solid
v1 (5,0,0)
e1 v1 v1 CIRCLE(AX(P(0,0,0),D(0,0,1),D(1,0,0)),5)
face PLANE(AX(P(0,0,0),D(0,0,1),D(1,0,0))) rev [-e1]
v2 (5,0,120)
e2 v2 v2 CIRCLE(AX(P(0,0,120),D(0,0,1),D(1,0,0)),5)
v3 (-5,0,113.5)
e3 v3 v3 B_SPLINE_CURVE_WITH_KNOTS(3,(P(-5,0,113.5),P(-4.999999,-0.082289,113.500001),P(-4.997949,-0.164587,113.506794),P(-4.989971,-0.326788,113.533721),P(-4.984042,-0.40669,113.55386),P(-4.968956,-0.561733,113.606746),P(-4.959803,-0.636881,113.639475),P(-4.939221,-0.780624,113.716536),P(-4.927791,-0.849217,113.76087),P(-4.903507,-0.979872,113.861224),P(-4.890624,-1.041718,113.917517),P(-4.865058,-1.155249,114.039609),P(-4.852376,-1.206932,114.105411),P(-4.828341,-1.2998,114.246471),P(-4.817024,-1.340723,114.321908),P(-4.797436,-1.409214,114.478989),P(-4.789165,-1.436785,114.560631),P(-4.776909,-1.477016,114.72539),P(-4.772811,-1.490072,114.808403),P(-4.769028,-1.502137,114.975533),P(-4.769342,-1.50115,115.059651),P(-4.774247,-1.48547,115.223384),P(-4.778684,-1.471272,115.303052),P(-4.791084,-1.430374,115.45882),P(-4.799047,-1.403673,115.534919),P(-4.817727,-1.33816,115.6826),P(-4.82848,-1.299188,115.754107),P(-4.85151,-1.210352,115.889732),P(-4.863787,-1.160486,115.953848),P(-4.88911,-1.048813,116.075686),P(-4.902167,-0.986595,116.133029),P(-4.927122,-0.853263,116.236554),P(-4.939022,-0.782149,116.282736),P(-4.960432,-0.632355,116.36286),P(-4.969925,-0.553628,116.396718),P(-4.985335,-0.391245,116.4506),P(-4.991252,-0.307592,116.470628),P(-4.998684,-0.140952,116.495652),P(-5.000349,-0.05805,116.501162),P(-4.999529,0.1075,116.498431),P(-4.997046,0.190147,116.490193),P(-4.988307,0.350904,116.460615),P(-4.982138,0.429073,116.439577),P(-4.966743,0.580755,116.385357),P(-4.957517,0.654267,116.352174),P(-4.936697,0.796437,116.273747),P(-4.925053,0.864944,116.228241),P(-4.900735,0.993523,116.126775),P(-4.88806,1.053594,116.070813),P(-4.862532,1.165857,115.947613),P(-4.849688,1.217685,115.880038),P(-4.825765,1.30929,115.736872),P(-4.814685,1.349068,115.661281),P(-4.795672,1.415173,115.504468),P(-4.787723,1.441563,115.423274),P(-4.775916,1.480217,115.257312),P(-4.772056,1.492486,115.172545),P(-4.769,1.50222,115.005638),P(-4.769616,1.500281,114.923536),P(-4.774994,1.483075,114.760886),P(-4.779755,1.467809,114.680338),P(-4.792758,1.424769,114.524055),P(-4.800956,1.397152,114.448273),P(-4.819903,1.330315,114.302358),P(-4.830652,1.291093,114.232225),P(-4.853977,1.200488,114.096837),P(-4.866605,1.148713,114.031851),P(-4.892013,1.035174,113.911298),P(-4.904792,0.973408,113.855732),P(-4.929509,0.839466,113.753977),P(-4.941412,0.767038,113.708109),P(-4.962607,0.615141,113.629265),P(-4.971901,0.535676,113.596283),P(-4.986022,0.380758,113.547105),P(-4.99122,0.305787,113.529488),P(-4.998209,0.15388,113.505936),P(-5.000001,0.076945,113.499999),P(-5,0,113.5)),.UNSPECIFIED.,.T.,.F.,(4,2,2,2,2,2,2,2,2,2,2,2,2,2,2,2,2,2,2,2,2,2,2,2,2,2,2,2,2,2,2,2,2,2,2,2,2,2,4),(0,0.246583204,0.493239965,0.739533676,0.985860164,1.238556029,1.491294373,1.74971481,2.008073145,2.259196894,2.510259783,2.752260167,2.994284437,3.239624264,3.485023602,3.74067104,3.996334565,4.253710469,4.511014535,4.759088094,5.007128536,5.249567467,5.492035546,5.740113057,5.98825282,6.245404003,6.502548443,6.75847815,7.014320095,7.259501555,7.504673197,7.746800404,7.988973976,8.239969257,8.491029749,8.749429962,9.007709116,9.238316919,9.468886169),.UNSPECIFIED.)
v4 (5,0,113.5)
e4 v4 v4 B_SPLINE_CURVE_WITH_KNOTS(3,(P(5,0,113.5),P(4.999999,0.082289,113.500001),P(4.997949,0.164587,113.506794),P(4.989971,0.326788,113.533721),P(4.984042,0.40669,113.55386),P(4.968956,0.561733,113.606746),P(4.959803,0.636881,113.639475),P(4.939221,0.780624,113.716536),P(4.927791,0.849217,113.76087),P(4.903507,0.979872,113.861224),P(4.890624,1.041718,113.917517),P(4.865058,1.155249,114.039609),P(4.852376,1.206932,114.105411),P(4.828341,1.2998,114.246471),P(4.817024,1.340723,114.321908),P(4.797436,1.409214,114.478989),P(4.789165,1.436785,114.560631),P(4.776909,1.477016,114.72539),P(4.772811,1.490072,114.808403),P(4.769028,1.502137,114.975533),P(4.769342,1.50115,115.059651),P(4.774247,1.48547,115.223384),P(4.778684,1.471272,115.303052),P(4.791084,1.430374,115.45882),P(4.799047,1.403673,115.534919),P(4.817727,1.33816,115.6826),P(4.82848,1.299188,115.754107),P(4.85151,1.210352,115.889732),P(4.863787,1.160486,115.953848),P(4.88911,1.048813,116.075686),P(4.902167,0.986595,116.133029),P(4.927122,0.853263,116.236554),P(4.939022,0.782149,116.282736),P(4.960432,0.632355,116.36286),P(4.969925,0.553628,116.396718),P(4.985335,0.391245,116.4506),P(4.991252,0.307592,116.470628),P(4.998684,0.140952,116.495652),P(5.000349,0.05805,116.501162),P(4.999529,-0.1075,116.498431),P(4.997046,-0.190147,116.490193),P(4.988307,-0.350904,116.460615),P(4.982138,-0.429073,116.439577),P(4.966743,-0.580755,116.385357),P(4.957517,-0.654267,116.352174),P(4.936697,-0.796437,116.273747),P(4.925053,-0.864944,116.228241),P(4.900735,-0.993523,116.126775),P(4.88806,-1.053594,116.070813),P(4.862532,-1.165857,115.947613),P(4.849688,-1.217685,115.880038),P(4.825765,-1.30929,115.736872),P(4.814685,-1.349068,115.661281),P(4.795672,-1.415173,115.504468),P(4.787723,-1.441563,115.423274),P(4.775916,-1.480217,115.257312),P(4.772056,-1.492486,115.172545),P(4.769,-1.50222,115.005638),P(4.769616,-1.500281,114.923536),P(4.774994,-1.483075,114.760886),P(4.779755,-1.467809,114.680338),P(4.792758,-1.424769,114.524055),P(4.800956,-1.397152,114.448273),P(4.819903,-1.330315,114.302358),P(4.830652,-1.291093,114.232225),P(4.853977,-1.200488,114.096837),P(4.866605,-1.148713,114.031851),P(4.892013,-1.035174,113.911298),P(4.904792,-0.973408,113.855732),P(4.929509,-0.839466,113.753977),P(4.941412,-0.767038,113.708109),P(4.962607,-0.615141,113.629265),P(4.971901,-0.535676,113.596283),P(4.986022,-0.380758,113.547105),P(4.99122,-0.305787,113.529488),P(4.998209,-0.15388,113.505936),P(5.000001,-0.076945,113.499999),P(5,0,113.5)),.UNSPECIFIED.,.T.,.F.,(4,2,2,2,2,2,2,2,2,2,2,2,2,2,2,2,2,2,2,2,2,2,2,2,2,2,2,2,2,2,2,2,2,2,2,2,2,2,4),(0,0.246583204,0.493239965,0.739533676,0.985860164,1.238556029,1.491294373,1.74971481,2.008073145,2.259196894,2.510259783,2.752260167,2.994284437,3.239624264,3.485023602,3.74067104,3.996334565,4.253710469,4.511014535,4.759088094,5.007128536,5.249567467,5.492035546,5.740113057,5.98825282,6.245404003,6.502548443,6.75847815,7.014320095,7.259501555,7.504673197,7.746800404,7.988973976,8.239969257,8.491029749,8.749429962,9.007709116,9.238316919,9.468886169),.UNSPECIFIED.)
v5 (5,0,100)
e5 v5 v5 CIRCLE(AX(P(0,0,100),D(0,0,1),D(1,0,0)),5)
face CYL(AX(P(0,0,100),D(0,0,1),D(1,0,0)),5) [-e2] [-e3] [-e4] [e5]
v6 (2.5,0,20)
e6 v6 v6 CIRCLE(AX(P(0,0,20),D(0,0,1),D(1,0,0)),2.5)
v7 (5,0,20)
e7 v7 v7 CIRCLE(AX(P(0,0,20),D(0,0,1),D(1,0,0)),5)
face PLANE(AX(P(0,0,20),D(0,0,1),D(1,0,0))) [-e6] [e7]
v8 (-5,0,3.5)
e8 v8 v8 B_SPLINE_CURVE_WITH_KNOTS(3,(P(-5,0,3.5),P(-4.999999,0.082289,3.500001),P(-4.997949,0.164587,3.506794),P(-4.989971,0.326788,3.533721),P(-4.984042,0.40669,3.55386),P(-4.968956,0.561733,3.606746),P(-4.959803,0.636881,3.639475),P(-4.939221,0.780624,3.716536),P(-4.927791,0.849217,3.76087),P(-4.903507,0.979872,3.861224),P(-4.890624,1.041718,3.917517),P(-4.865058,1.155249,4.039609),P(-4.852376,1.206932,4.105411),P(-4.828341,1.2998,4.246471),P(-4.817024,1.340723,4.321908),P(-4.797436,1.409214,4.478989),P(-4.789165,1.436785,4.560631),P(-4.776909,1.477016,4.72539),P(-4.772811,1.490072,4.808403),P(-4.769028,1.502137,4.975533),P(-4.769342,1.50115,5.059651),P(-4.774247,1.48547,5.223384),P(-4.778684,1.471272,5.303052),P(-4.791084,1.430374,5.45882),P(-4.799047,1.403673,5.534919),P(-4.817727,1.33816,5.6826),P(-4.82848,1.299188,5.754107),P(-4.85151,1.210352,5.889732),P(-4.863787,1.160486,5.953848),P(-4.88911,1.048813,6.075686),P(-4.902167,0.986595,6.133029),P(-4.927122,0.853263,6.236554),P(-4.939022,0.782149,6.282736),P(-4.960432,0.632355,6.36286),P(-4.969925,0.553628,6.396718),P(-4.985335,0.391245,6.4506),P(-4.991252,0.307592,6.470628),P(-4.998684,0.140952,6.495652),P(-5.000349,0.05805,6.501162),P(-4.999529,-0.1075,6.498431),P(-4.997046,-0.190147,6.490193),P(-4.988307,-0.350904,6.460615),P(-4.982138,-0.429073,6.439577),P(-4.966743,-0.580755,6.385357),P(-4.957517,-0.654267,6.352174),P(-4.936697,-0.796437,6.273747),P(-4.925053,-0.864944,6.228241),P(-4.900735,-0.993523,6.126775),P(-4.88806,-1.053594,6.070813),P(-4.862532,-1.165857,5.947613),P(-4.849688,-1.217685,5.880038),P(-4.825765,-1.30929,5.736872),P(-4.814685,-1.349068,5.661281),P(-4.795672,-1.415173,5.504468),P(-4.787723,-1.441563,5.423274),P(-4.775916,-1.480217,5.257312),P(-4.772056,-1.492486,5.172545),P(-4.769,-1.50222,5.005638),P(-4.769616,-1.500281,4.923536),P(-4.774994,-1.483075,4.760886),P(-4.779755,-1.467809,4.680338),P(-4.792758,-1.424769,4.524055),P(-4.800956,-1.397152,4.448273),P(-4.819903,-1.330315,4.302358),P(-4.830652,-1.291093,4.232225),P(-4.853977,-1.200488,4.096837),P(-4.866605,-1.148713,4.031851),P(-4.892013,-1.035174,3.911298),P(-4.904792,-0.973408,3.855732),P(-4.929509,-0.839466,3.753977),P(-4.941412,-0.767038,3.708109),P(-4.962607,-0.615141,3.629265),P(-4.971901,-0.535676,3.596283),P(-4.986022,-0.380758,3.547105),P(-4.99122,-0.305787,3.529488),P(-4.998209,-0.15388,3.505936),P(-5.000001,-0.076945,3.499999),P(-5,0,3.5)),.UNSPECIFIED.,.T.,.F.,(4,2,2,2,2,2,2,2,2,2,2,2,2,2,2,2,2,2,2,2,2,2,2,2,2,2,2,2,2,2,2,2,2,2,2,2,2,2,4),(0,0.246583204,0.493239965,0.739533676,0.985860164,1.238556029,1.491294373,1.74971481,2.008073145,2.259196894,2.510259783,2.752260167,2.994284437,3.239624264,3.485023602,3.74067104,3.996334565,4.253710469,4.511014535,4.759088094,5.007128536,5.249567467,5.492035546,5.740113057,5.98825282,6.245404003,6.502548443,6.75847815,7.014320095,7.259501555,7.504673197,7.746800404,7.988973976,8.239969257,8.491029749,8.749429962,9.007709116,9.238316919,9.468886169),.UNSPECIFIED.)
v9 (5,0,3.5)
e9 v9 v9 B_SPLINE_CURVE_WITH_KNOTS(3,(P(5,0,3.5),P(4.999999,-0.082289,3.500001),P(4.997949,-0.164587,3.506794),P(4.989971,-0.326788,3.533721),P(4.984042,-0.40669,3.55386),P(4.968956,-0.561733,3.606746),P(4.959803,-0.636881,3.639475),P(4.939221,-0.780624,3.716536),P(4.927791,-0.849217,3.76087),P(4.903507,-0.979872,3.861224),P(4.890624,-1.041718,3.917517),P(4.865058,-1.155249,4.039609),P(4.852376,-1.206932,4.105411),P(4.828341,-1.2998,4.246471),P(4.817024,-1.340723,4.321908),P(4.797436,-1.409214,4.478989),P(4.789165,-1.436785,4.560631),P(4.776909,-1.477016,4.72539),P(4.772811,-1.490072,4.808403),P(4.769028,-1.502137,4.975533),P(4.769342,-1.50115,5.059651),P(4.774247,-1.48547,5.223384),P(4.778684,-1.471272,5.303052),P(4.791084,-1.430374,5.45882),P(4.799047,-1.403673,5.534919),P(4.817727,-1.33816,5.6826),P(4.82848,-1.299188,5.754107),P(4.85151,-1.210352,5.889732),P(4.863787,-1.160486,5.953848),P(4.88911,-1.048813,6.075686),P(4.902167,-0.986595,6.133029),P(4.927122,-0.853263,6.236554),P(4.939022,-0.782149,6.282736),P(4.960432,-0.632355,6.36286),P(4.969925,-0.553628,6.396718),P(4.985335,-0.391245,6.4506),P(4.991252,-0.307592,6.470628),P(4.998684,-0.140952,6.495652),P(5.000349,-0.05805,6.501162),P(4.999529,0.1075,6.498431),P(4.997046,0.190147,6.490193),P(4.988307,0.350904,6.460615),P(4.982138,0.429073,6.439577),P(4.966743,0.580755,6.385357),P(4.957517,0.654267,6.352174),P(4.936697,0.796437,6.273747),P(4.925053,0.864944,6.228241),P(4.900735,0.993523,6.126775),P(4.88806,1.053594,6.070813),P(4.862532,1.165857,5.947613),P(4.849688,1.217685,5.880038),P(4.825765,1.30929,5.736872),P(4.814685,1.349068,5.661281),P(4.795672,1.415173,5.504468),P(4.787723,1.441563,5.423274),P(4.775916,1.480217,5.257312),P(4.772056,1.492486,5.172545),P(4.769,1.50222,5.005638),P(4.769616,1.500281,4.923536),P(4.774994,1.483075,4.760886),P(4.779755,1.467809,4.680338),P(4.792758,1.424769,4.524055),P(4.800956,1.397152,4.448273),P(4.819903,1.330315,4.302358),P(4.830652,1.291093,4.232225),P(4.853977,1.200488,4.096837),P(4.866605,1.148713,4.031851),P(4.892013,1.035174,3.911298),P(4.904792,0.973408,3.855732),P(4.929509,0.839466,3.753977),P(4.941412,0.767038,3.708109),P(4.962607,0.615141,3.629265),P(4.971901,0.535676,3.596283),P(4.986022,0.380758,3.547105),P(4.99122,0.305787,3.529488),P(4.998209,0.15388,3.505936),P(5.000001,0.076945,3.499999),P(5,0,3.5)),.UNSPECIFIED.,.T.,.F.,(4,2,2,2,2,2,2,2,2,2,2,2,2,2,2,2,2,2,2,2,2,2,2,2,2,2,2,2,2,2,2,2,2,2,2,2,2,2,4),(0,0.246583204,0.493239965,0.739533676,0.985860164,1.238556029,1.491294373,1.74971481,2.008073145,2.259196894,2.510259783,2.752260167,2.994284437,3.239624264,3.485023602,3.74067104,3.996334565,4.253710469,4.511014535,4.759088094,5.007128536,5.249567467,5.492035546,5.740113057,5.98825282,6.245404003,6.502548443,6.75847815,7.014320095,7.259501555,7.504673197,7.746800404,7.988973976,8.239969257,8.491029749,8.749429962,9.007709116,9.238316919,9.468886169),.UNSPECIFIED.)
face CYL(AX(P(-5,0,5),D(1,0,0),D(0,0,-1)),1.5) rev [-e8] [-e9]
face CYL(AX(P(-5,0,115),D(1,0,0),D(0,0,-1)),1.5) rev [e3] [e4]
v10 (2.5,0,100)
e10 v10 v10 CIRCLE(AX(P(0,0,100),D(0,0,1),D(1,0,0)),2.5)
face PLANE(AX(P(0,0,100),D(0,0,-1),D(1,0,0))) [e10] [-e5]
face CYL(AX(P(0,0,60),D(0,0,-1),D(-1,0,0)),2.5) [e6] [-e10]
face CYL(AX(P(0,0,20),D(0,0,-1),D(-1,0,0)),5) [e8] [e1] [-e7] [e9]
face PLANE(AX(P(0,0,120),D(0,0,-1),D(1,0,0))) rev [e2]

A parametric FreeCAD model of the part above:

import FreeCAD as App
import Part
import Sketcher
Q = App.Units.Quantity

doc = App.newDocument("Part")
params = doc.addObject("Spreadsheet::Sheet", "Params")
for row, (alias, value) in enumerate([
    ("sketch1_diameter", "10 mm"),
    ("pad1_length", "20 mm"),
    ("sketch2_diameter", "5 mm"),
    ("pad2_length", "40 mm"),
    ("sketch3_diameter", "3 mm"),
    ("sketch4_diameter", "3 mm"),
], start=1):
    params.set(f"A{row}", alias)
    params.set(f"B{row}", "=" + value)
    params.setAlias(f"B{row}", alias)

body = doc.addObject("PartDesign::Body", "Body")

sketch1 = doc.addObject("Sketcher::SketchObject", "Sketch")
body.addObject(sketch1)
sketch1.AttachmentSupport = (doc.XY_Plane, [""])
sketch1.MapMode = "FlatFace"
sketch1.addGeometry(Part.Circle(App.Vector(0, 0, 0), App.Vector(0, 0, 1), 5), False)
sketch1.addConstraint(Sketcher.Constraint("Coincident", 0, 3, -1, 1))
sketch1.addConstraint(Sketcher.Constraint("Diameter", 0, Q("10 mm")))
sketch1.setExpression("Constraints[1]", "Params.sketch1_diameter")
pad1 = doc.addObject("PartDesign::Pad", "Pad")
body.addObject(pad1)
pad1.Profile = sketch1
pad1.setExpression("Length", "Params.pad1_length")

sketch2 = doc.addObject("Sketcher::SketchObject", "Sketch001")
body.addObject(sketch2)
sketch2.AttachmentSupport = (doc.XY_Plane, [""])
sketch2.MapMode = "FlatFace"
sketch2.AttachmentOffset = App.Placement(App.Vector(0, 0, 20), App.Rotation())
sketch2.addGeometry(Part.Circle(App.Vector(0, 0, 0), App.Vector(0, 0, 1), 2.5), False)
sketch2.addConstraint(Sketcher.Constraint("Coincident", 0, 3, -1, 1))
sketch2.addConstraint(Sketcher.Constraint("Diameter", 0, Q("5 mm")))
sketch2.setExpression("Constraints[1]", "Params.sketch2_diameter")
pad2 = doc.addObject("PartDesign::Pad", "Pad001")
body.addObject(pad2)
pad2.Profile = sketch2
pad2.setExpression("Length", "Params.pad2_length")

sketch3 = doc.addObject("Sketcher::SketchObject", "Sketch002")
body.addObject(sketch3)
sketch3.AttachmentSupport = (doc.YZ_Plane, [""])
sketch3.MapMode = "FlatFace"
sketch3.AttachmentOffset = App.Placement(App.Vector(0, 0, 5), App.Rotation())
sketch3.addGeometry(Part.Circle(App.Vector(0, 5, 0), App.Vector(0, 0, 1), 1.5), False)
sketch3.addConstraint(Sketcher.Constraint("PointOnObject", 0, 3, -2))
sketch3.addConstraint(Sketcher.Constraint("Diameter", 0, Q("3 mm")))
sketch3.addConstraint(Sketcher.Constraint("DistanceY", -1, 1, 0, 3, Q("5 mm")))
sketch3.setExpression("Constraints[1]", "Params.sketch3_diameter")
pocket1 = doc.addObject("PartDesign::Pocket", "Pocket")
body.addObject(pocket1)
pocket1.Profile = sketch3
pocket1.Type = "ThroughAll"
doc.recompute()

datumplane = doc.addObject("PartDesign::Plane", "DatumPlane")
body.addObject(datumplane)
datumplane.AttachmentSupport = (doc.XY_Plane, [""])
datumplane.MapMode = "FlatFace"
datumplane.AttachmentOffset = App.Placement(App.Vector(0, 0, 60), App.Rotation())
mirrored = doc.addObject("PartDesign::Mirrored", "Mirrored")
body.addObject(mirrored)
mirrored.Originals = [pad2]
mirrored.MirrorPlane = (datumplane, [""])
body.Tip = mirrored
doc.recompute()

datumplane2 = doc.addObject("PartDesign::Plane", "DatumPlane001")
body.addObject(datumplane2)
datumplane2.AttachmentSupport = (doc.XY_Plane, [""])
datumplane2.MapMode = "FlatFace"
datumplane2.AttachmentOffset = App.Placement(App.Vector(0, 0, 60), App.Rotation())
mirrored2 = doc.addObject("PartDesign::Mirrored", "Mirrored001")
body.addObject(mirrored2)
mirrored2.Originals = [pad1]
mirrored2.MirrorPlane = (datumplane2, [""])
body.Tip = mirrored2

sketch4 = doc.addObject("Sketcher::SketchObject", "Sketch003")
body.addObject(sketch4)
sketch4.AttachmentSupport = (doc.YZ_Plane, [""])
sketch4.MapMode = "FlatFace"
sketch4.AttachmentOffset = App.Placement(App.Vector(0, 0, 5), App.Rotation())
sketch4.addGeometry(Part.Circle(App.Vector(0, 115, 0), App.Vector(0, 0, 1), 1.5), False)
sketch4.addConstraint(Sketcher.Constraint("PointOnObject", 0, 3, -2))
sketch4.addConstraint(Sketcher.Constraint("Diameter", 0, Q("3 mm")))
sketch4.addConstraint(Sketcher.Constraint("DistanceY", -1, 1, 0, 3, Q("115 mm")))
sketch4.setExpression("Constraints[1]", "Params.sketch4_diameter")
pocket2 = doc.addObject("PartDesign::Pocket", "Pocket001")
body.addObject(pocket2)
pocket2.Profile = sketch4
pocket2.Type = "ThroughAll"

doc.recompute()
